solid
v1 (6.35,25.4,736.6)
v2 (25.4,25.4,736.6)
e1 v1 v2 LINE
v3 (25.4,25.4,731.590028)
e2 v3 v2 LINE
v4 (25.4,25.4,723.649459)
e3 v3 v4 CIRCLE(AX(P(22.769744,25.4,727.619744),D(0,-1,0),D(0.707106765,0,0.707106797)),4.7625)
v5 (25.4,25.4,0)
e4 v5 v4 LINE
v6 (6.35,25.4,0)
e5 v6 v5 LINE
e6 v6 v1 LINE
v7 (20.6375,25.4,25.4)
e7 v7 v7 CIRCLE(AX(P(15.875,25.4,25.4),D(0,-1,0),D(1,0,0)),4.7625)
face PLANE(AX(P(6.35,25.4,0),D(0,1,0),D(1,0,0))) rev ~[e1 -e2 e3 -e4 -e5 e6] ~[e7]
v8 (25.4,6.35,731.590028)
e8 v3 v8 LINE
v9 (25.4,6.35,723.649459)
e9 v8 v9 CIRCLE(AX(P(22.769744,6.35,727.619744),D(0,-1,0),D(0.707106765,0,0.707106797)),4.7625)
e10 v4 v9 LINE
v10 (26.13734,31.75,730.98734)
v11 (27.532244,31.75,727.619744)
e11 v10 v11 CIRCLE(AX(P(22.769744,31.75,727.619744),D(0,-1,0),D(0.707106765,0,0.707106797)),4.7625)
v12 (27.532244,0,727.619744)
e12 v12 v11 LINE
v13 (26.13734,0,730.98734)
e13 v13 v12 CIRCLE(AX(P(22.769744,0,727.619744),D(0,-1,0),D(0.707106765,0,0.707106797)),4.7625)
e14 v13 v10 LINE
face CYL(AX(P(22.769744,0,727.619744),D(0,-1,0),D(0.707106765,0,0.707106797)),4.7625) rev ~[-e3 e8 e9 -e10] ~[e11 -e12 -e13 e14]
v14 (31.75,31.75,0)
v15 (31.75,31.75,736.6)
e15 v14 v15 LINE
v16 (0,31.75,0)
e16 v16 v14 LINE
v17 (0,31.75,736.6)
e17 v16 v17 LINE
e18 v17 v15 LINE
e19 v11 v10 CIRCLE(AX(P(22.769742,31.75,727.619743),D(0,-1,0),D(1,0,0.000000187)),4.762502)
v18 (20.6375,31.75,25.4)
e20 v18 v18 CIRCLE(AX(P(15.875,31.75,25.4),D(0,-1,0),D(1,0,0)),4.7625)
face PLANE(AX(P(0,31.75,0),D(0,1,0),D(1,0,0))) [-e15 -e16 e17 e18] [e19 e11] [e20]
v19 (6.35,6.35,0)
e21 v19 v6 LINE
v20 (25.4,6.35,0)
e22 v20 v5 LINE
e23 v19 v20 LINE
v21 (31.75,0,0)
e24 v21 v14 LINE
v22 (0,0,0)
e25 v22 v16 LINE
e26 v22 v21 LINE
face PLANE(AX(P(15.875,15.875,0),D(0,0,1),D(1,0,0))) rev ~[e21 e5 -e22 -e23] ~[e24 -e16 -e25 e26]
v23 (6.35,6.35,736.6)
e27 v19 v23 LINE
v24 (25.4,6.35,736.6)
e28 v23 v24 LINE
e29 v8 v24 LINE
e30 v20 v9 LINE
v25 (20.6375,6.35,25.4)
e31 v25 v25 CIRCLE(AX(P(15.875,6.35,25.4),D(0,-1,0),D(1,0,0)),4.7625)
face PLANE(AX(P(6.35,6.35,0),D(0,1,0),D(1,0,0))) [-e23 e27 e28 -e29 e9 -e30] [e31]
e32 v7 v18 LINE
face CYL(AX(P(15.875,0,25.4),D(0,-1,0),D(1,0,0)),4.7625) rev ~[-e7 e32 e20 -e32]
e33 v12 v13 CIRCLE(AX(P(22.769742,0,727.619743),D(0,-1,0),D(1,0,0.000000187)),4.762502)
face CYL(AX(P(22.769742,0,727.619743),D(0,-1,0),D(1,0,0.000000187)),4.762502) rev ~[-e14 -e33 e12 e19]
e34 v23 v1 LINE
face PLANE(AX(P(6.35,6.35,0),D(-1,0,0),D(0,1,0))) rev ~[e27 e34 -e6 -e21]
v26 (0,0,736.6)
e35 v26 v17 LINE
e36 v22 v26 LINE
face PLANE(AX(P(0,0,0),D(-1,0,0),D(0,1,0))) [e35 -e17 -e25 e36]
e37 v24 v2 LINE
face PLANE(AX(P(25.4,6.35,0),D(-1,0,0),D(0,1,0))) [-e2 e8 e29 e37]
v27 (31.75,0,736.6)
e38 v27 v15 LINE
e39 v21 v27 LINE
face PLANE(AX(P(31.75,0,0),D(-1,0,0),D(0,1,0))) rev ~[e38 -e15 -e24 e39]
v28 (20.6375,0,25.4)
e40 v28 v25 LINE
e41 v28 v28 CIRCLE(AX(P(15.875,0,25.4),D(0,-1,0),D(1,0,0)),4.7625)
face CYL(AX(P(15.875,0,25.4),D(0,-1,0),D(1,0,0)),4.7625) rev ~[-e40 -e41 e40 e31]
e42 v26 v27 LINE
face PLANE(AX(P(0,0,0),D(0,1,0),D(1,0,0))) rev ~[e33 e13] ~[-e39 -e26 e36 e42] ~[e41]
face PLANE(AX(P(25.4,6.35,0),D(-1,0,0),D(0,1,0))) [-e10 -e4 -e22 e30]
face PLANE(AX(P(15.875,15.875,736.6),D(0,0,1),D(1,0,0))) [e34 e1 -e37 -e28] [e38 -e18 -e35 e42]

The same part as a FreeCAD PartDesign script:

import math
import FreeCAD as App
import Part
import Sketcher
Q = App.Units.Quantity

doc = App.newDocument("Part")
params = doc.addObject("Spreadsheet::Sheet", "Params")
for row, (alias, value) in enumerate([
    ("sketch1_width", "1.25 in"),
    ("pad1_length", "29 in"),
    ("sketch2_diameter", "0.375 in"),
    ("sketch3_radius", "0.1875001 in"),
], start=1):
    params.set(f"A{row}", alias)
    params.set(f"B{row}", "=" + value)
    params.setAlias(f"B{row}", alias)

body = doc.addObject("PartDesign::Body", "Body")

sketch1 = body.newObject("Sketcher::SketchObject", "Sketch")
sketch1.AttachmentSupport = (doc.getObject("XY_Plane"), [""])
sketch1.MapMode = "FlatFace"
sketch1.addGeometry([
    Part.LineSegment(App.Vector(0, 32, 0), App.Vector(0, 0, 0)),
    Part.LineSegment(App.Vector(0, 0, 0), App.Vector(32, 0, 0)),
    Part.LineSegment(App.Vector(32, 0, 0), App.Vector(32, 32, 0)),
    Part.LineSegment(App.Vector(32, 32, 0), App.Vector(0, 32, 0)),
    Part.LineSegment(App.Vector(25, 6, 0), App.Vector(6, 6, 0)),
    Part.LineSegment(App.Vector(6, 6, 0), App.Vector(6, 25, 0)),
    Part.LineSegment(App.Vector(6, 25, 0), App.Vector(25, 25, 0)),
    Part.LineSegment(App.Vector(25, 25, 0), App.Vector(25, 6, 0)),
], False)
sketch1.addConstraint([
    Sketcher.Constraint("Coincident", 0, 2, 1, 1),
    Sketcher.Constraint("Coincident", 1, 2, 2, 1),
    Sketcher.Constraint("Coincident", 2, 2, 3, 1),
    Sketcher.Constraint("Coincident", 3, 2, 0, 1),
    Sketcher.Constraint("Coincident", 4, 2, 5, 1),
    Sketcher.Constraint("Coincident", 5, 2, 6, 1),
    Sketcher.Constraint("Coincident", 6, 2, 7, 1),
    Sketcher.Constraint("Coincident", 7, 2, 4, 1),
    Sketcher.Constraint("Vertical", 0),
    Sketcher.Constraint("Horizontal", 1),
    Sketcher.Constraint("Vertical", 2),
    Sketcher.Constraint("Horizontal", 3),
    Sketcher.Constraint("Horizontal", 4),
    Sketcher.Constraint("Vertical", 5),
    Sketcher.Constraint("Horizontal", 6),
    Sketcher.Constraint("Vertical", 7),
    Sketcher.Constraint("Coincident", 0, 2, -1, 1),
    Sketcher.Constraint("Equal", 3, 0),
    Sketcher.Constraint("Equal", 6, 5),
    Sketcher.Constraint("DistanceY", -1, 1, 5, 2, Q("1 in")),
    Sketcher.Constraint("DistanceX", -1, 1, 6, 2, Q("1 in")),
    Sketcher.Constraint("DistanceX", 4, 2, 1, 2, Q("1 in")),
    Sketcher.Constraint("DistanceX", 1, 1, 1, 2, Q("1.25 in")),
])
sketch1.setExpression("Constraints[22]", "Params.sketch1_width")
pad1 = body.newObject("PartDesign::Pad", "Pad")
pad1.Profile = sketch1
pad1.setExpression("Length", "Params.pad1_length")

sketch2 = body.newObject("Sketcher::SketchObject", "Sketch001")
sketch2.AttachmentSupport = (doc.getObject("XZ_Plane"), [""])
sketch2.MapMode = "FlatFace"
sketch2.addGeometry(Part.Circle(App.Vector(15.9, 25.4, 0), App.Vector(0, 0, 1), 4.8), False)
sketch2.addConstraint([
    Sketcher.Constraint("Diameter", 0, Q("0.375 in")),
    Sketcher.Constraint("DistanceY", -1, 1, 0, 3, Q("1 in")),
    Sketcher.Constraint("DistanceX", -1, 1, 0, 3, Q("0.625 in")),
])
sketch2.setExpression("Constraints[0]", "Params.sketch2_diameter")
pocket1 = body.newObject("PartDesign::Pocket", "Pocket")
pocket1.Profile = sketch2
pocket1.Type = "ThroughAll"

sketch3 = body.newObject("Sketcher::SketchObject", "Sketch002")
sketch3.AttachmentSupport = (doc.getObject("XZ_Plane"), [""])
sketch3.MapMode = "FlatFace"
sketch3.addGeometry([
    Part.ArcOfCircle(Part.Circle(App.Vector(22.8, 727.6, 0), App.Vector(0, 0, 1), 4.8), math.radians(0), math.radians(45)),
    Part.ArcOfCircle(Part.Circle(App.Vector(22.8, 727.6, 0), App.Vector(0, 0, 1), 4.8), math.radians(45), math.radians(360)),
], False)
sketch3.addConstraint([
    Sketcher.Constraint("Tangent", 0, 1, 1, 2),
    Sketcher.Constraint("Coincident", 1, 1, 0, 2),
    Sketcher.Constraint("Horizontal", 1, 3, 0, 1),
    Sketcher.Constraint("Radius", 0, Q("0.1875001 in")),
    Sketcher.Constraint("DistanceX", -1, 1, 1, 1, 26.13734),
    Sketcher.Constraint("DistanceY", -1, 1, 1, 1, 730.98734),
    Sketcher.Constraint("DistanceX", -1, 1, 0, 3, 22.769742),
])
sketch3.setExpression("Constraints[3]", "Params.sketch3_radius")
pocket2 = body.newObject("PartDesign::Pocket", "Pocket001")
pocket2.Profile = sketch3
pocket2.Type = "ThroughAll"

doc.recompute()
